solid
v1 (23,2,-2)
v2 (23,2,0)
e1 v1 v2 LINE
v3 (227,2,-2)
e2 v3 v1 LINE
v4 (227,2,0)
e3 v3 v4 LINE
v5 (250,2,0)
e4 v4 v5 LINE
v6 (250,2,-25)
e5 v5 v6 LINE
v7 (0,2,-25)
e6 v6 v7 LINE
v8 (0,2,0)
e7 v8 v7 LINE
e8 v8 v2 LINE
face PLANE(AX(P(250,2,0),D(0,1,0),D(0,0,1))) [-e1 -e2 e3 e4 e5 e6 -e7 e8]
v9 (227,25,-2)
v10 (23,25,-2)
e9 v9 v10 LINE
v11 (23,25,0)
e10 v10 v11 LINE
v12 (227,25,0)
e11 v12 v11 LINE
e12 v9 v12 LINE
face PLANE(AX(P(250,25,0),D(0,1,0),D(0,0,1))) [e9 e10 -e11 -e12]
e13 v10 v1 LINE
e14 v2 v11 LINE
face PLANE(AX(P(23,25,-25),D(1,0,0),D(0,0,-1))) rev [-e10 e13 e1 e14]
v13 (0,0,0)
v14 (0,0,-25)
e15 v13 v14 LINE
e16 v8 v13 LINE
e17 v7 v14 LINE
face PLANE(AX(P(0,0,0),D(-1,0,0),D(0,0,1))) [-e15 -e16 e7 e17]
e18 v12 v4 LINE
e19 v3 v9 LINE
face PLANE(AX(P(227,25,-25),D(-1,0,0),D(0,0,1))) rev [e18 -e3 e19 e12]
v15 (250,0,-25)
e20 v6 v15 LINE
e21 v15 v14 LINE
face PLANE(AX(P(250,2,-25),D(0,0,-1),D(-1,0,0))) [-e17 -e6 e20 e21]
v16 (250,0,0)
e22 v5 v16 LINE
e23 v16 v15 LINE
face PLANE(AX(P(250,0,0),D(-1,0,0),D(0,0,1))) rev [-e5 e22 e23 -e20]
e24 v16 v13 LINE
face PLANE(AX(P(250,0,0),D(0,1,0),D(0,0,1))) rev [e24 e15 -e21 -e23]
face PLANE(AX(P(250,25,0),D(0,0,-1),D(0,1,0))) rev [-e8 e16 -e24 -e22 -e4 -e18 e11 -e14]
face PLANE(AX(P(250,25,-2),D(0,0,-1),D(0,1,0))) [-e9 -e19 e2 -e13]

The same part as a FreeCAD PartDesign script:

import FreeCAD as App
import Part
import Sketcher
Q = App.Units.Quantity


def add_polygon(sketch, points):
    """Adds a closed chain of lines whose ends are joined by coincident constraints."""
    first, n = sketch.GeometryCount, len(points)
    for a, b in zip(points, points[1:] + points[:1]):
        sketch.addGeometry(Part.LineSegment(App.Vector(*a, 0), App.Vector(*b, 0)), False)
    for i in range(n):
        sketch.addConstraint(Sketcher.Constraint("Coincident", first + i, 2, first + (i + 1) % n, 1))

doc = App.newDocument("Part")
params = doc.addObject("Spreadsheet::Sheet", "Params")
for row, (alias, value) in enumerate([
    ("sketch1_width", "25 mm"),
    ("sketch1_width2", "2 mm"),
    ("pad1_length", "250 mm"),
    ("sketch2_width", "23 mm"),
], start=1):
    params.set(f"A{row}", alias)
    params.set(f"B{row}", "=" + value)
    params.setAlias(f"B{row}", alias)

body = doc.addObject("PartDesign::Body", "Body")

sketch1 = body.newObject("Sketcher::SketchObject", "Sketch")
sketch1.AttachmentSupport = (doc.getObject("YZ_Plane"), [""])
sketch1.MapMode = "FlatFace"
add_polygon(sketch1, [(25, 0), (0, 0), (0, -25), (2, -25), (2, -2), (25, -2)])
sketch1.addConstraint([
    Sketcher.Constraint("Horizontal", 0),
    Sketcher.Constraint("Vertical", 1),
    Sketcher.Constraint("Horizontal", 2),
    Sketcher.Constraint("Vertical", 3),
    Sketcher.Constraint("Horizontal", 4),
    Sketcher.Constraint("Vertical", 5),
    Sketcher.Constraint("Coincident", 0, 2, -1, 1),
    Sketcher.Constraint("Equal", 0, 1),
    Sketcher.Constraint("Equal", 4, 3),
    Sketcher.Constraint("DistanceX", 0, 2, 0, 1, Q("25 mm")),
    Sketcher.Constraint("DistanceX", 2, 1, 2, 2, Q("2 mm")),
])
sketch1.setExpression("Constraints[15]", "Params.sketch1_width")
sketch1.setExpression("Constraints[16]", "Params.sketch1_width2")
pad1 = body.newObject("PartDesign::Pad", "Pad")
pad1.Profile = sketch1
pad1.setExpression("Length", "Params.pad1_length")

sketch2 = body.newObject("Sketcher::SketchObject", "Sketch001")
sketch2.AttachmentSupport = (doc.getObject("XY_Plane"), [""])
sketch2.MapMode = "FlatFace"
add_polygon(sketch2, [(227, 25), (227, 2), (250, 2), (250, 25)])
add_polygon(sketch2, [(0, 25), (0, 2), (23, 2), (23, 25)])
sketch2.addConstraint([
    Sketcher.Constraint("Vertical", 0),
    Sketcher.Constraint("Horizontal", 1),
    Sketcher.Constraint("Vertical", 2),
    Sketcher.Constraint("Horizontal", 3),
    Sketcher.Constraint("Vertical", 4),
    Sketcher.Constraint("Horizontal", 5),
    Sketcher.Constraint("Vertical", 6),
    Sketcher.Constraint("Horizontal", 7),
    Sketcher.Constraint("PointOnObject", 4, 2, -2),
    Sketcher.Constraint("Horizontal", 1, 2, 4, 2),
    Sketcher.Constraint("Horizontal", 3, 2, 6, 2),
    Sketcher.Constraint("Equal", 3, 5),
    Sketcher.Constraint("Equal", 7, 0),
    Sketcher.Constraint("DistanceX", 1, 1, 1, 2, Q("23 mm")),
    Sketcher.Constraint("DistanceX", -1, 1, 0, 2, Q("227 mm")),
    Sketcher.Constraint("DistanceY", -1, 1, 0, 2, Q("2 mm")),
])
sketch2.setExpression("Constraints[21]", "Params.sketch2_width")
pocket1 = body.newObject("PartDesign::Pocket", "Pocket")
pocket1.Profile = sketch2
pocket1.Type = "ThroughAll"

doc.recompute()
